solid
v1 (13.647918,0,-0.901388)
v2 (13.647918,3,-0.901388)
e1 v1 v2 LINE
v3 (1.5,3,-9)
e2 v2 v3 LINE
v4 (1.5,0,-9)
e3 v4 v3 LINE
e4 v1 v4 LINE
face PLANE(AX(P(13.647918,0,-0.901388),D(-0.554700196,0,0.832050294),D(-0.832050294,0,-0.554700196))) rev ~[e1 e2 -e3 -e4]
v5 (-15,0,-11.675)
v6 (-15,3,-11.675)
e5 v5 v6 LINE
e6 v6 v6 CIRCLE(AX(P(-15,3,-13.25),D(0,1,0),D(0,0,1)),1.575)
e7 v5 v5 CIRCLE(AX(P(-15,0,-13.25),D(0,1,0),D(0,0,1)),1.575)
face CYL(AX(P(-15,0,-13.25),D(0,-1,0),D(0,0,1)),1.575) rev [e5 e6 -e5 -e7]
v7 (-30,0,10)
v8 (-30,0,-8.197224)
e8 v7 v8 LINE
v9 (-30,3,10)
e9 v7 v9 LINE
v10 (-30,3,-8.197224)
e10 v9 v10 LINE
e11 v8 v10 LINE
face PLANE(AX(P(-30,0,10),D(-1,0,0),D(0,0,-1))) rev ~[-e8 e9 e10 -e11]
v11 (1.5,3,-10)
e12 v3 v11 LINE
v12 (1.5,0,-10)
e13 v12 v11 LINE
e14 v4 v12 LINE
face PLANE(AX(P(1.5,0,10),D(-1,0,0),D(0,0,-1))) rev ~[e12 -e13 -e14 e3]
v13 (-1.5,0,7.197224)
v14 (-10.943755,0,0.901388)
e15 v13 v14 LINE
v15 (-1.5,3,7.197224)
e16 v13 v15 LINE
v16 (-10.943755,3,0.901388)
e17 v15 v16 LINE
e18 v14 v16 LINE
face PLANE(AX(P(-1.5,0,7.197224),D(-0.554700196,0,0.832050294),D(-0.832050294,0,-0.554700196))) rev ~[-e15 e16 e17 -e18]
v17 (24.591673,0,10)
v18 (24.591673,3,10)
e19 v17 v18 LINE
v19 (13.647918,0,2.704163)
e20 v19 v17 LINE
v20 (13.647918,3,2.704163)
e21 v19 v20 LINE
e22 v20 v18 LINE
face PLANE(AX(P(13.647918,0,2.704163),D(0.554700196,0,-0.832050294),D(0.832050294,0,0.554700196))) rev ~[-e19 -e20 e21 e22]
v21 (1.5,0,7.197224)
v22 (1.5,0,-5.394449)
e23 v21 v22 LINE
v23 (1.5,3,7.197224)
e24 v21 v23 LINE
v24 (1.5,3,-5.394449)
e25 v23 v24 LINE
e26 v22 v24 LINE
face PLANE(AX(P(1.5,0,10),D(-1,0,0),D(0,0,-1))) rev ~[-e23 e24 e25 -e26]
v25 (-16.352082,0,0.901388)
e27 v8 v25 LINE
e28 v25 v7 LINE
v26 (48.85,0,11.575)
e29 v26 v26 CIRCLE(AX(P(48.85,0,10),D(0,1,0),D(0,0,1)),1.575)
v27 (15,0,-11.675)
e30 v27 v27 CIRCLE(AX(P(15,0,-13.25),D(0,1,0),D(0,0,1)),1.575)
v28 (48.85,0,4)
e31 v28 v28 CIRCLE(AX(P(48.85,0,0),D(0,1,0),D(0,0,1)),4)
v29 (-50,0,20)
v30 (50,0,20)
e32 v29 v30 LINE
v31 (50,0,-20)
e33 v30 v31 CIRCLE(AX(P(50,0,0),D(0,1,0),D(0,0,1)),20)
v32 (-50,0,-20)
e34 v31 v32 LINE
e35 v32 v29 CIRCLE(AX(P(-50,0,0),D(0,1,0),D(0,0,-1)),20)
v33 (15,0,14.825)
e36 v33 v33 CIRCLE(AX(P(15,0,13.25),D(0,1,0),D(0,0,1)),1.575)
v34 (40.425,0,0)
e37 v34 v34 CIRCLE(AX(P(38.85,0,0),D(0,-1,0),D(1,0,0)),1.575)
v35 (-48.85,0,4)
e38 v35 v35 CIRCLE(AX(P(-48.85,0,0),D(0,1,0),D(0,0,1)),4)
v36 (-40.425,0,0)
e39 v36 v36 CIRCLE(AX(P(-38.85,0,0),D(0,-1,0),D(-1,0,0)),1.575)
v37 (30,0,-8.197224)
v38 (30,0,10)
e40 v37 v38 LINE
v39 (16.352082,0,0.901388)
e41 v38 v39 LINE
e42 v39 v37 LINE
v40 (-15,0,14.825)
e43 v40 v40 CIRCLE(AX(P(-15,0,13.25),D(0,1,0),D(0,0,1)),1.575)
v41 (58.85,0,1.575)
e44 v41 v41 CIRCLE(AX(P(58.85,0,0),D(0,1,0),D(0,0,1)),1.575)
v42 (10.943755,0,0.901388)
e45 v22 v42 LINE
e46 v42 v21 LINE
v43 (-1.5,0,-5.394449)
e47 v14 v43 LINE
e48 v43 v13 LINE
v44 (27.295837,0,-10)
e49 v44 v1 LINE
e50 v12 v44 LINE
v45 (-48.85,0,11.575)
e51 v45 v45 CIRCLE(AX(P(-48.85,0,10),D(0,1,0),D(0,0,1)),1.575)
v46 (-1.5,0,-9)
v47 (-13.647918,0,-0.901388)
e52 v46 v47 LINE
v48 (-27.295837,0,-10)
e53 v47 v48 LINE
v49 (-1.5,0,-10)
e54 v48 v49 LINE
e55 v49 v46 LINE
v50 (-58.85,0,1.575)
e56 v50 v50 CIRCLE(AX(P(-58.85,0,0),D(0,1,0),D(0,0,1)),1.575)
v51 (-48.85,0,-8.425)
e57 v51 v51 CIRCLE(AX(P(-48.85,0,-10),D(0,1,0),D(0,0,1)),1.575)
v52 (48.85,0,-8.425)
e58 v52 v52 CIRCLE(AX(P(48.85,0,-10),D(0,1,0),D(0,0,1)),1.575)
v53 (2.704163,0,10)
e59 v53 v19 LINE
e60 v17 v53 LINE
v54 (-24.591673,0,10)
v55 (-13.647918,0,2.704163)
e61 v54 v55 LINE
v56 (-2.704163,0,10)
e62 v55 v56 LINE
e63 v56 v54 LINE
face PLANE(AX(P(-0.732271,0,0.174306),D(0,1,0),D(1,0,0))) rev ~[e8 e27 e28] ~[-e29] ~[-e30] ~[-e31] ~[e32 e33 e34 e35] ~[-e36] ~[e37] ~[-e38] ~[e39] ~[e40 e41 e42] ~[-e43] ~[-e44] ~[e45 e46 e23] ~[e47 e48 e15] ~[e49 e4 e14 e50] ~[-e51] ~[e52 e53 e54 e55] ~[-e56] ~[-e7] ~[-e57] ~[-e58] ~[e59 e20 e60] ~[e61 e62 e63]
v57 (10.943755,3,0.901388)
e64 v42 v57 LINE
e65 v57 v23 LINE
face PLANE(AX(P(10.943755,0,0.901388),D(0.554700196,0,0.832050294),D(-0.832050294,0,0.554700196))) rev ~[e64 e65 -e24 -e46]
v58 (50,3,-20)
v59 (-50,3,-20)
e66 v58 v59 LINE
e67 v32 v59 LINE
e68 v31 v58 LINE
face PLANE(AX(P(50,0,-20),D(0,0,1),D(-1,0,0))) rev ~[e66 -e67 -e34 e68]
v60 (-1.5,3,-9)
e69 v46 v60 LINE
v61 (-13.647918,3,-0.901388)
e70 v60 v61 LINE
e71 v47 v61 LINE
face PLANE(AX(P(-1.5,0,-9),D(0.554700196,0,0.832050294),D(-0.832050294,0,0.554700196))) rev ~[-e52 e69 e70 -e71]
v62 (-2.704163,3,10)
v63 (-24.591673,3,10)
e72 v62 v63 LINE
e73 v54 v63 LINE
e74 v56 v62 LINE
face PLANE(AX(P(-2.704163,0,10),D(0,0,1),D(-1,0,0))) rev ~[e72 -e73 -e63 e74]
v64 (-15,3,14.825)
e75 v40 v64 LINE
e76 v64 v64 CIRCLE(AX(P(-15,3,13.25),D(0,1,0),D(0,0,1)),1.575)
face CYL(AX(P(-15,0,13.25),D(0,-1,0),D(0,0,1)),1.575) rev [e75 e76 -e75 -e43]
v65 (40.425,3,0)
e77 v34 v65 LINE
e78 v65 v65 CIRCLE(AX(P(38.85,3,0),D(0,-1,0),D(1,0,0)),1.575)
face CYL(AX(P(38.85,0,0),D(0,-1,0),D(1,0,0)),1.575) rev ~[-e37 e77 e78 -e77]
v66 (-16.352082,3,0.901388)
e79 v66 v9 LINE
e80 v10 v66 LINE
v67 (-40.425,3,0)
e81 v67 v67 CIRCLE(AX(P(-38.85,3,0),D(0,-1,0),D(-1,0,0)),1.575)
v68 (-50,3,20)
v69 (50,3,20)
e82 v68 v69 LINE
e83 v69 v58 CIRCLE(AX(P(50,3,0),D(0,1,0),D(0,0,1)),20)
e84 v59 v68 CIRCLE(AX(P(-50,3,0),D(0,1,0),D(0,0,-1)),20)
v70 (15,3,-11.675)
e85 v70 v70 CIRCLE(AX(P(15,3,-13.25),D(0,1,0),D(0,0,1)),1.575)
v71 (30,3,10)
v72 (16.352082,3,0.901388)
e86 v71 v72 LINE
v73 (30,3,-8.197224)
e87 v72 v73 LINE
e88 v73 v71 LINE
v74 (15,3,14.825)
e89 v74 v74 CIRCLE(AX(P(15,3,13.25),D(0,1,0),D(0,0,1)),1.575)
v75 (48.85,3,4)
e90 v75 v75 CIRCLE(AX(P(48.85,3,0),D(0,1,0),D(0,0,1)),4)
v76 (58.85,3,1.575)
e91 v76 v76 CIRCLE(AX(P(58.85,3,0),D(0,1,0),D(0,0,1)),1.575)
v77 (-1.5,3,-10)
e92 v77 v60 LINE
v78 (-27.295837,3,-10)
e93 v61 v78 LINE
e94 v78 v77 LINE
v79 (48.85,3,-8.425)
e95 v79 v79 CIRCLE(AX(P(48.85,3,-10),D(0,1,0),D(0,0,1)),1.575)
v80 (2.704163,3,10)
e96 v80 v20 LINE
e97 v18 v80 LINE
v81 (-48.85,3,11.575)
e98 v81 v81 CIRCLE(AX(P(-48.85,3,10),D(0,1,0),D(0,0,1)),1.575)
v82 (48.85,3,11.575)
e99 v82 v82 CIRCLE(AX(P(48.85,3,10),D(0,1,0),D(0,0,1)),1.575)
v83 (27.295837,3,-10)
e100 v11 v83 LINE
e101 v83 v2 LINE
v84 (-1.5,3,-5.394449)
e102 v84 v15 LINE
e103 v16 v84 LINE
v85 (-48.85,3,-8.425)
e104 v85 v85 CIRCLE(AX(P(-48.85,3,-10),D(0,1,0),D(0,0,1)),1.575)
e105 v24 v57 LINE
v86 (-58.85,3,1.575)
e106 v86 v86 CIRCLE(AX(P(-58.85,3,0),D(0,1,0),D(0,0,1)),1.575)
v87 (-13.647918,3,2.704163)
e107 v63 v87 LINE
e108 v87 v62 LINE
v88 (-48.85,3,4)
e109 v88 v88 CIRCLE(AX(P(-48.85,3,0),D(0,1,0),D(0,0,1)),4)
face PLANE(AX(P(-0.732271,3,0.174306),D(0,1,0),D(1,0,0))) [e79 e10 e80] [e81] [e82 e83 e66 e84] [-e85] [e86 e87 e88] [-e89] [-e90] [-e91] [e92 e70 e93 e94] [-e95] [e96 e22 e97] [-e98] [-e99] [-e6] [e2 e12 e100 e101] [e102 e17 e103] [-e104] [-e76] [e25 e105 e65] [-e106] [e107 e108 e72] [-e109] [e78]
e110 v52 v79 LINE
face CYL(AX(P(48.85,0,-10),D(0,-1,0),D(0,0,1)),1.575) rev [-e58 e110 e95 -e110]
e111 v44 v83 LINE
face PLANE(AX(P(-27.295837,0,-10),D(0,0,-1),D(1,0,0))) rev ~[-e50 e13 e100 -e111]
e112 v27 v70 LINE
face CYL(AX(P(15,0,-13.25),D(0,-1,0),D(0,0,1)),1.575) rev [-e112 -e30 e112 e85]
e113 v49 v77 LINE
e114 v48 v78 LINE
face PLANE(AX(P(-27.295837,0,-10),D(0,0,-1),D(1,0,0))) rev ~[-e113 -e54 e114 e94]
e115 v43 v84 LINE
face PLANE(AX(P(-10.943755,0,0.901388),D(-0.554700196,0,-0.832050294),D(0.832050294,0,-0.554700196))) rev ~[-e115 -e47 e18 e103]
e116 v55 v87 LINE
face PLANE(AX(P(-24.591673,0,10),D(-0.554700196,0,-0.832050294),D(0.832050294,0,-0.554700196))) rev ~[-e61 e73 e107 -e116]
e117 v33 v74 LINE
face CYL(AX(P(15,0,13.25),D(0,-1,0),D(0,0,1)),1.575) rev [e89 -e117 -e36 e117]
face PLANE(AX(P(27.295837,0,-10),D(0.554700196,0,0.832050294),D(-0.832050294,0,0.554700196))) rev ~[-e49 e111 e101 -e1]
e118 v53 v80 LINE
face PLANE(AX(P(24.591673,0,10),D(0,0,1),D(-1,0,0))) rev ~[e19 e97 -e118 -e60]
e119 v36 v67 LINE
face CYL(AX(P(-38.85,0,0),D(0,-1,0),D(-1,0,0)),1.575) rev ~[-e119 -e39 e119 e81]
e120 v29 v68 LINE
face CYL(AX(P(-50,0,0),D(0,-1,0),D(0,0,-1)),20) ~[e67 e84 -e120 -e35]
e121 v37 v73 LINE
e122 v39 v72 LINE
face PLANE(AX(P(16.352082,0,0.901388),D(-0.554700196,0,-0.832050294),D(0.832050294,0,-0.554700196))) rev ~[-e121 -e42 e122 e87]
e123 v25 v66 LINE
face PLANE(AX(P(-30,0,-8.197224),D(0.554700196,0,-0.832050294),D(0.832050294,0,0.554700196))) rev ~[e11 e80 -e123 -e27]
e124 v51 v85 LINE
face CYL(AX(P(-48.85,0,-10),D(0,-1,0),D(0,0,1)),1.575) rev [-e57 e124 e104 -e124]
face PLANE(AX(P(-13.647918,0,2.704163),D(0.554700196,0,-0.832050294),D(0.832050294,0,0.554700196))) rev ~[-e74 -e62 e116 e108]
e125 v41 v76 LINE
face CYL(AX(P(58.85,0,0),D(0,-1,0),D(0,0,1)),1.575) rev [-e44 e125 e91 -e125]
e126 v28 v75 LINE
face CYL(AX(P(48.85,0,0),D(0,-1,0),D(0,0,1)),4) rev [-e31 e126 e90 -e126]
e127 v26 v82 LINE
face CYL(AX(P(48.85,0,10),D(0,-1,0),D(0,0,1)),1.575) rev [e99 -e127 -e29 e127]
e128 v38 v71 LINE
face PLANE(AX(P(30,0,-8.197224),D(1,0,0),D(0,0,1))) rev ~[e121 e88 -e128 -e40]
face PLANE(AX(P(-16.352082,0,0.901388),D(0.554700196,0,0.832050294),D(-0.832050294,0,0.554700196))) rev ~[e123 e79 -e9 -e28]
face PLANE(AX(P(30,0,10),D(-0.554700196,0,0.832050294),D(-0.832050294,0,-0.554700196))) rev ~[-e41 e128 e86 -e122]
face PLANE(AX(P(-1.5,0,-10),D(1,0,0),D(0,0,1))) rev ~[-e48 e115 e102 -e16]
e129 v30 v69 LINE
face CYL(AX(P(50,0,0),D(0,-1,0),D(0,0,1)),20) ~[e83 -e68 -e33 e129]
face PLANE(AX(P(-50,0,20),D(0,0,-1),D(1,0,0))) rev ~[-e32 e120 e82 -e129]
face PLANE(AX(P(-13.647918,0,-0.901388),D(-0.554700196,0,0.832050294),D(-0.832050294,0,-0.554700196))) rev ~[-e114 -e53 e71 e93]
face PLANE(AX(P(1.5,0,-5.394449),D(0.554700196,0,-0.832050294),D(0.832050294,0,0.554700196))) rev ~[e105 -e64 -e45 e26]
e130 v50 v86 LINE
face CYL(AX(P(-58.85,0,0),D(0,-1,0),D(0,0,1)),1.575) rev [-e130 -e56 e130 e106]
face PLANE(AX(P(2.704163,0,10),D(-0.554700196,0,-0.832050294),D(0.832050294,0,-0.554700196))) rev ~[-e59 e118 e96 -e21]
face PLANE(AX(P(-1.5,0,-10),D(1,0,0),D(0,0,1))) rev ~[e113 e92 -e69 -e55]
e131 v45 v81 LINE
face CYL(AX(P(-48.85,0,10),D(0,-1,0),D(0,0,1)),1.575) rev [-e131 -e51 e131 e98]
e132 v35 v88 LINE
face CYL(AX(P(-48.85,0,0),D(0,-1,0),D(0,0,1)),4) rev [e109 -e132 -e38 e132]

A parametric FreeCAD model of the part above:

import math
import FreeCAD as App
import Part
import Sketcher
Q = App.Units.Quantity


def add_polygon(sketch, points):
    """Adds a closed chain of lines whose ends are joined by coincident constraints."""
    first, n = sketch.GeometryCount, len(points)
    for a, b in zip(points, points[1:] + points[:1]):
        sketch.addGeometry(Part.LineSegment(App.Vector(*a, 0), App.Vector(*b, 0)), False)
    for i in range(n):
        sketch.addConstraint(Sketcher.Constraint("Coincident", first + i, 2, first + (i + 1) % n, 1))

doc = App.newDocument("Part")
body = doc.addObject("PartDesign::Body", "Body")

sketch1 = body.newObject("Sketcher::SketchObject", "Sketch")
sketch1.AttachmentSupport = (doc.getObject("XZ_Plane"), [""])
sketch1.MapMode = "FlatFace"
sketch1.addGeometry(Part.ArcOfCircle(Part.Circle(App.Vector(-50, 0, 0), App.Vector(0, 0, 1), 20), math.radians(90), math.radians(270)), False)
sketch1.addGeometry(Part.LineSegment(App.Vector(-50, 20, 0), App.Vector(50, 20, 0)), False)
sketch1.addGeometry(Part.ArcOfCircle(Part.Circle(App.Vector(50, 0, 0), App.Vector(0, 0, 1), 20), math.radians(-90), math.radians(90)), False)
sketch1.addGeometry(Part.LineSegment(App.Vector(50, -20, 0), App.Vector(-50, -20, 0)), False)
sketch1.addGeometry(Part.Circle(App.Vector(-48.9, 10, 0), App.Vector(0, 0, 1), 1.6), False)
sketch1.addGeometry(Part.Circle(App.Vector(-15, 13.2, 0), App.Vector(0, 0, 1), 1.6), False)
sketch1.addGeometry(Part.Circle(App.Vector(-58.9, 0, 0), App.Vector(0, 0, 1), 1.6), False)
sketch1.addGeometry(Part.Circle(App.Vector(-48.9, 0, 0), App.Vector(0, 0, 1), 4), False)
sketch1.addGeometry(Part.Circle(App.Vector(-38.9, 0, 0), App.Vector(0, 0, 1), 1.6), False)
add_polygon(sketch1, [(-13.6, 2.7), (-2.7, 10), (-24.6, 10)])
add_polygon(sketch1, [(-16.4, 0.9), (-30, 10), (-30, -8.2)])
sketch1.addGeometry(Part.Circle(App.Vector(15, 13.2, 0), App.Vector(0, 0, 1), 1.6), False)
sketch1.addGeometry(Part.Circle(App.Vector(48.9, 10, 0), App.Vector(0, 0, 1), 1.6), False)
add_polygon(sketch1, [(13.6, 2.7), (24.6, 10), (2.7, 10)])
add_polygon(sketch1, [(-13.6, -0.9), (-27.3, -10), (27.3, -10), (13.6, -0.9), (1.5, -9), (1.5, -5.4), (10.9, 0.9), (1.5, 7.2), (1.5, 10), (-1.5, 10), (-1.5, 7.2), (-10.9, 0.9), (-1.5, -5.4), (-1.5, -9)])
add_polygon(sketch1, [(16.4, 0.9), (30, -8.2), (30, 10)])
sketch1.addGeometry(Part.Circle(App.Vector(48.9, 0, 0), App.Vector(0, 0, 1), 4), False)
sketch1.addGeometry(Part.Circle(App.Vector(58.9, 0, 0), App.Vector(0, 0, 1), 1.6), False)
sketch1.addGeometry(Part.Circle(App.Vector(-48.9, -10, 0), App.Vector(0, 0, 1), 1.6), False)
sketch1.addGeometry(Part.Circle(App.Vector(-15, -13.2, 0), App.Vector(0, 0, 1), 1.6), False)
sketch1.addGeometry(Part.Circle(App.Vector(38.9, 0, 0), App.Vector(0, 0, 1), 1.6), False)
sketch1.addGeometry(Part.Circle(App.Vector(15, -13.2, 0), App.Vector(0, 0, 1), 1.6), False)
sketch1.addGeometry(Part.Circle(App.Vector(48.9, -10, 0), App.Vector(0, 0, 1), 1.6), False)
sketch1.addConstraint(Sketcher.Constraint("Tangent", 0, 1, 1, 1))
sketch1.addConstraint(Sketcher.Constraint("Tangent", 1, 2, 2, 2))
sketch1.addConstraint(Sketcher.Constraint("Tangent", 2, 1, 3, 1))
sketch1.addConstraint(Sketcher.Constraint("Tangent", 3, 2, 0, 2))
sketch1.addConstraint(Sketcher.Constraint("Horizontal", 1))
sketch1.addConstraint(Sketcher.Constraint("Horizontal", 3))
sketch1.addConstraint(Sketcher.Constraint("Horizontal", 10))
sketch1.addConstraint(Sketcher.Constraint("Vertical", 13))
sketch1.addConstraint(Sketcher.Constraint("Horizontal", 18))
sketch1.addConstraint(Sketcher.Constraint("Horizontal", 21))
sketch1.addConstraint(Sketcher.Constraint("Vertical", 24))
sketch1.addConstraint(Sketcher.Constraint("Vertical", 27))
sketch1.addConstraint(Sketcher.Constraint("Horizontal", 28))
sketch1.addConstraint(Sketcher.Constraint("Vertical", 29))
sketch1.addConstraint(Sketcher.Constraint("Vertical", 32))
sketch1.addConstraint(Sketcher.Constraint("Vertical", 35))
sketch1.addConstraint(Sketcher.Constraint("Equal", 4, 5))
sketch1.addConstraint(Sketcher.Constraint("Equal", 5, 6))
sketch1.addConstraint(Sketcher.Constraint("Equal", 6, 8))
sketch1.addConstraint(Sketcher.Constraint("Equal", 8, 15))
sketch1.addConstraint(Sketcher.Constraint("Equal", 15, 16))
sketch1.addConstraint(Sketcher.Constraint("Equal", 7, 37))
sketch1.addConstraint(Sketcher.Constraint("Equal", 16, 38))
sketch1.addConstraint(Sketcher.Constraint("Equal", 38, 39))
sketch1.addConstraint(Sketcher.Constraint("Equal", 39, 40))
sketch1.addConstraint(Sketcher.Constraint("Equal", 40, 41))
sketch1.addConstraint(Sketcher.Constraint("Equal", 41, 42))
sketch1.addConstraint(Sketcher.Constraint("Equal", 42, 43))
sketch1.addConstraint(Sketcher.Constraint("Symmetric", 0, 3, 2, 3, -1, 1))
sketch1.addConstraint(Sketcher.Constraint("Symmetric", 7, 3, 37, 3, -1, 1))
sketch1.addConstraint(Sketcher.Constraint("Symmetric", 6, 3, 38, 3, -1, 1))
sketch1.addConstraint(Sketcher.Constraint("Symmetric", 16, 3, 39, 3, -1, 1))
sketch1.addConstraint(Sketcher.Constraint("Symmetric", 15, 3, 40, 3, -1, 1))
sketch1.addConstraint(Sketcher.Constraint("Symmetric", 8, 3, 41, 3, -1, 1))
sketch1.addConstraint(Sketcher.Constraint("Symmetric", 5, 3, 42, 3, -1, 1))
sketch1.addConstraint(Sketcher.Constraint("Symmetric", 4, 3, 43, 3, -1, 1))
sketch1.addConstraint(Sketcher.Constraint("Symmetric", 5, 3, 15, 3, -2))
sketch1.addConstraint(Sketcher.Constraint("Symmetric", 4, 3, 16, 3, -2))
sketch1.addConstraint(Sketcher.Constraint("Symmetric", 10, 2, 17, 2, -2))
sketch1.addConstraint(Sketcher.Constraint("Symmetric", 11, 2, 19, 2, -2))
sketch1.addConstraint(Sketcher.Constraint("Symmetric", 26, 2, 29, 2, -2))
sketch1.addConstraint(Sketcher.Constraint("Symmetric", 25, 2, 30, 2, -2))
sketch1.addConstraint(Sketcher.Constraint("Symmetric", 24, 2, 31, 2, -2))
sketch1.addConstraint(Sketcher.Constraint("Symmetric", 22, 2, 33, 2, -2))
sketch1.addConstraint(Sketcher.Constraint("Symmetric", 13, 2, 34, 2, -2))
sketch1.addConstraint(Sketcher.Constraint("Symmetric", 14, 2, 36, 2, -2))
sketch1.addConstraint(Sketcher.Constraint("PointOnObject", 6, 3, -1))
sketch1.addConstraint(Sketcher.Constraint("PointOnObject", 7, 3, -1))
sketch1.addConstraint(Sketcher.Constraint("PointOnObject", 8, 3, -1))
sketch1.addConstraint(Sketcher.Constraint("Parallel", 11, 12))
sketch1.addConstraint(Sketcher.Constraint("Parallel", 9, 14))
sketch1.addConstraint(Sketcher.Constraint("Parallel", 14, 17))
sketch1.addConstraint(Sketcher.Constraint("Parallel", 12, 19))
sketch1.addConstraint(Sketcher.Constraint("Parallel", 17, 20))
sketch1.addConstraint(Sketcher.Constraint("Parallel", 19, 22))
sketch1.addConstraint(Sketcher.Constraint("Parallel", 20, 23))
sketch1.addConstraint(Sketcher.Constraint("Parallel", 23, 25))
sketch1.addConstraint(Sketcher.Constraint("Parallel", 22, 26))
sketch1.addConstraint(Sketcher.Constraint("Parallel", 31, 33))
sketch1.addConstraint(Sketcher.Constraint("Parallel", 30, 36))
sketch1.addConstraint(Sketcher.Constraint("Horizontal", 16, 3, 9, 2))
sketch1.addConstraint(Sketcher.Constraint("Horizontal", 10, 2, 12, 2))
sketch1.addConstraint(Sketcher.Constraint("Horizontal", 43, 3, 20, 2))
sketch1.addConstraint(Sketcher.Constraint("Horizontal", 14, 2, 25, 2))
sketch1.addConstraint(Sketcher.Constraint("Horizontal", 18, 2, 27, 2))
sketch1.addConstraint(Sketcher.Constraint("Vertical", 4, 3, 7, 3))
sketch1.addConstraint(Sketcher.Constraint("Vertical", 19, 2, 22, 2))
sketch1.addConstraint(Sketcher.Constraint("Vertical", 24, 2, 26, 2))
sketch1.addConstraint(Sketcher.Constraint("Equal", 14, 20))
sketch1.addConstraint(Sketcher.Constraint("Diameter", 7, Q("8 mm")))
sketch1.addConstraint(Sketcher.Constraint("Radius", 0, Q("20 mm")))
sketch1.addConstraint(Sketcher.Constraint("Diameter", 4, Q("3.15 mm")))
sketch1.addConstraint(Sketcher.Constraint("DistanceX", 1, 1, 1, 2, Q("100 mm")))
sketch1.addConstraint(Sketcher.Constraint("DistanceX", 28, 2, 28, 1, Q("3 mm")))
sketch1.addConstraint(Sketcher.Constraint("DistanceY", -1, 1, 4, 3, Q("10 mm")))
sketch1.addConstraint(Sketcher.Constraint("DistanceX", 5, 3, -1, 1, Q("15 mm")))
sketch1.addConstraint(Sketcher.Constraint("DistanceX", 12, 2, -1, 1, Q("30 mm")))
sketch1.addConstraint(Sketcher.Constraint("DistanceY", 23, 2, -1, 1, Q("9 mm")))
sketch1.addConstraint(Sketcher.Constraint("DistanceX", 6, 3, 4, 3, Q("10 mm")))
sketch1.addConstraint(Sketcher.Constraint("DistanceX", 7, 3, 8, 3, Q("10 mm")))
sketch1.addConstraint(Sketcher.Constraint("DistanceX", 8, 3, 16, 3, Q("87.7 mm")))
sketch1.addConstraint(Sketcher.Constraint("DistanceY", 40, 3, 5, 3, Q("26.5 mm")))
sketch1.addConstraint(Sketcher.Constraint("DistanceX", 10, 2, 10, 1, Q("21.88751 mm")))
sketch1.addConstraint(Sketcher.Constraint("DistanceY", 24, 1, 24, 2, Q("3.605551 mm")))
sketch1.addConstraint(Sketcher.Constraint("Distance", 23, Q("14.599981 mm")))
sketch1.addConstraint(Sketcher.Constraint("Distance", 25, Q("11.349981 mm")))
pad1 = body.newObject("PartDesign::Pad", "Pad")
pad1.Profile = sketch1
pad1.Length = 3
pad1.Reversed = True

sketch2 = body.newObject("Sketcher::SketchObject", "Sketch001")
sketch2.AttachmentSupport = (doc.getObject("XZ_Plane"), [""])
sketch2.MapMode = "FlatFace"
add_polygon(sketch2, [(-1.5, 10), (1.5, 10), (1.5, -10), (-1.5, -10)])
sketch2.addConstraint(Sketcher.Constraint("Horizontal", 0))
sketch2.addConstraint(Sketcher.Constraint("Vertical", 1))
sketch2.addConstraint(Sketcher.Constraint("Horizontal", 2))
sketch2.addConstraint(Sketcher.Constraint("Vertical", 3))
sketch2.addConstraint(Sketcher.Constraint("Symmetric", 0, 2, 2, 2, -1, 1))
sketch2.addConstraint(Sketcher.Constraint("DistanceX", 0, 1, 0, 2, Q("3 mm")))
sketch2.addConstraint(Sketcher.Constraint("DistanceY", 1, 2, 1, 1, Q("20 mm")))
pad2 = body.newObject("PartDesign::Pad", "Pad001")
pad2.Profile = sketch2
pad2.Length = 3
pad2.Reversed = True

doc.recompute()
